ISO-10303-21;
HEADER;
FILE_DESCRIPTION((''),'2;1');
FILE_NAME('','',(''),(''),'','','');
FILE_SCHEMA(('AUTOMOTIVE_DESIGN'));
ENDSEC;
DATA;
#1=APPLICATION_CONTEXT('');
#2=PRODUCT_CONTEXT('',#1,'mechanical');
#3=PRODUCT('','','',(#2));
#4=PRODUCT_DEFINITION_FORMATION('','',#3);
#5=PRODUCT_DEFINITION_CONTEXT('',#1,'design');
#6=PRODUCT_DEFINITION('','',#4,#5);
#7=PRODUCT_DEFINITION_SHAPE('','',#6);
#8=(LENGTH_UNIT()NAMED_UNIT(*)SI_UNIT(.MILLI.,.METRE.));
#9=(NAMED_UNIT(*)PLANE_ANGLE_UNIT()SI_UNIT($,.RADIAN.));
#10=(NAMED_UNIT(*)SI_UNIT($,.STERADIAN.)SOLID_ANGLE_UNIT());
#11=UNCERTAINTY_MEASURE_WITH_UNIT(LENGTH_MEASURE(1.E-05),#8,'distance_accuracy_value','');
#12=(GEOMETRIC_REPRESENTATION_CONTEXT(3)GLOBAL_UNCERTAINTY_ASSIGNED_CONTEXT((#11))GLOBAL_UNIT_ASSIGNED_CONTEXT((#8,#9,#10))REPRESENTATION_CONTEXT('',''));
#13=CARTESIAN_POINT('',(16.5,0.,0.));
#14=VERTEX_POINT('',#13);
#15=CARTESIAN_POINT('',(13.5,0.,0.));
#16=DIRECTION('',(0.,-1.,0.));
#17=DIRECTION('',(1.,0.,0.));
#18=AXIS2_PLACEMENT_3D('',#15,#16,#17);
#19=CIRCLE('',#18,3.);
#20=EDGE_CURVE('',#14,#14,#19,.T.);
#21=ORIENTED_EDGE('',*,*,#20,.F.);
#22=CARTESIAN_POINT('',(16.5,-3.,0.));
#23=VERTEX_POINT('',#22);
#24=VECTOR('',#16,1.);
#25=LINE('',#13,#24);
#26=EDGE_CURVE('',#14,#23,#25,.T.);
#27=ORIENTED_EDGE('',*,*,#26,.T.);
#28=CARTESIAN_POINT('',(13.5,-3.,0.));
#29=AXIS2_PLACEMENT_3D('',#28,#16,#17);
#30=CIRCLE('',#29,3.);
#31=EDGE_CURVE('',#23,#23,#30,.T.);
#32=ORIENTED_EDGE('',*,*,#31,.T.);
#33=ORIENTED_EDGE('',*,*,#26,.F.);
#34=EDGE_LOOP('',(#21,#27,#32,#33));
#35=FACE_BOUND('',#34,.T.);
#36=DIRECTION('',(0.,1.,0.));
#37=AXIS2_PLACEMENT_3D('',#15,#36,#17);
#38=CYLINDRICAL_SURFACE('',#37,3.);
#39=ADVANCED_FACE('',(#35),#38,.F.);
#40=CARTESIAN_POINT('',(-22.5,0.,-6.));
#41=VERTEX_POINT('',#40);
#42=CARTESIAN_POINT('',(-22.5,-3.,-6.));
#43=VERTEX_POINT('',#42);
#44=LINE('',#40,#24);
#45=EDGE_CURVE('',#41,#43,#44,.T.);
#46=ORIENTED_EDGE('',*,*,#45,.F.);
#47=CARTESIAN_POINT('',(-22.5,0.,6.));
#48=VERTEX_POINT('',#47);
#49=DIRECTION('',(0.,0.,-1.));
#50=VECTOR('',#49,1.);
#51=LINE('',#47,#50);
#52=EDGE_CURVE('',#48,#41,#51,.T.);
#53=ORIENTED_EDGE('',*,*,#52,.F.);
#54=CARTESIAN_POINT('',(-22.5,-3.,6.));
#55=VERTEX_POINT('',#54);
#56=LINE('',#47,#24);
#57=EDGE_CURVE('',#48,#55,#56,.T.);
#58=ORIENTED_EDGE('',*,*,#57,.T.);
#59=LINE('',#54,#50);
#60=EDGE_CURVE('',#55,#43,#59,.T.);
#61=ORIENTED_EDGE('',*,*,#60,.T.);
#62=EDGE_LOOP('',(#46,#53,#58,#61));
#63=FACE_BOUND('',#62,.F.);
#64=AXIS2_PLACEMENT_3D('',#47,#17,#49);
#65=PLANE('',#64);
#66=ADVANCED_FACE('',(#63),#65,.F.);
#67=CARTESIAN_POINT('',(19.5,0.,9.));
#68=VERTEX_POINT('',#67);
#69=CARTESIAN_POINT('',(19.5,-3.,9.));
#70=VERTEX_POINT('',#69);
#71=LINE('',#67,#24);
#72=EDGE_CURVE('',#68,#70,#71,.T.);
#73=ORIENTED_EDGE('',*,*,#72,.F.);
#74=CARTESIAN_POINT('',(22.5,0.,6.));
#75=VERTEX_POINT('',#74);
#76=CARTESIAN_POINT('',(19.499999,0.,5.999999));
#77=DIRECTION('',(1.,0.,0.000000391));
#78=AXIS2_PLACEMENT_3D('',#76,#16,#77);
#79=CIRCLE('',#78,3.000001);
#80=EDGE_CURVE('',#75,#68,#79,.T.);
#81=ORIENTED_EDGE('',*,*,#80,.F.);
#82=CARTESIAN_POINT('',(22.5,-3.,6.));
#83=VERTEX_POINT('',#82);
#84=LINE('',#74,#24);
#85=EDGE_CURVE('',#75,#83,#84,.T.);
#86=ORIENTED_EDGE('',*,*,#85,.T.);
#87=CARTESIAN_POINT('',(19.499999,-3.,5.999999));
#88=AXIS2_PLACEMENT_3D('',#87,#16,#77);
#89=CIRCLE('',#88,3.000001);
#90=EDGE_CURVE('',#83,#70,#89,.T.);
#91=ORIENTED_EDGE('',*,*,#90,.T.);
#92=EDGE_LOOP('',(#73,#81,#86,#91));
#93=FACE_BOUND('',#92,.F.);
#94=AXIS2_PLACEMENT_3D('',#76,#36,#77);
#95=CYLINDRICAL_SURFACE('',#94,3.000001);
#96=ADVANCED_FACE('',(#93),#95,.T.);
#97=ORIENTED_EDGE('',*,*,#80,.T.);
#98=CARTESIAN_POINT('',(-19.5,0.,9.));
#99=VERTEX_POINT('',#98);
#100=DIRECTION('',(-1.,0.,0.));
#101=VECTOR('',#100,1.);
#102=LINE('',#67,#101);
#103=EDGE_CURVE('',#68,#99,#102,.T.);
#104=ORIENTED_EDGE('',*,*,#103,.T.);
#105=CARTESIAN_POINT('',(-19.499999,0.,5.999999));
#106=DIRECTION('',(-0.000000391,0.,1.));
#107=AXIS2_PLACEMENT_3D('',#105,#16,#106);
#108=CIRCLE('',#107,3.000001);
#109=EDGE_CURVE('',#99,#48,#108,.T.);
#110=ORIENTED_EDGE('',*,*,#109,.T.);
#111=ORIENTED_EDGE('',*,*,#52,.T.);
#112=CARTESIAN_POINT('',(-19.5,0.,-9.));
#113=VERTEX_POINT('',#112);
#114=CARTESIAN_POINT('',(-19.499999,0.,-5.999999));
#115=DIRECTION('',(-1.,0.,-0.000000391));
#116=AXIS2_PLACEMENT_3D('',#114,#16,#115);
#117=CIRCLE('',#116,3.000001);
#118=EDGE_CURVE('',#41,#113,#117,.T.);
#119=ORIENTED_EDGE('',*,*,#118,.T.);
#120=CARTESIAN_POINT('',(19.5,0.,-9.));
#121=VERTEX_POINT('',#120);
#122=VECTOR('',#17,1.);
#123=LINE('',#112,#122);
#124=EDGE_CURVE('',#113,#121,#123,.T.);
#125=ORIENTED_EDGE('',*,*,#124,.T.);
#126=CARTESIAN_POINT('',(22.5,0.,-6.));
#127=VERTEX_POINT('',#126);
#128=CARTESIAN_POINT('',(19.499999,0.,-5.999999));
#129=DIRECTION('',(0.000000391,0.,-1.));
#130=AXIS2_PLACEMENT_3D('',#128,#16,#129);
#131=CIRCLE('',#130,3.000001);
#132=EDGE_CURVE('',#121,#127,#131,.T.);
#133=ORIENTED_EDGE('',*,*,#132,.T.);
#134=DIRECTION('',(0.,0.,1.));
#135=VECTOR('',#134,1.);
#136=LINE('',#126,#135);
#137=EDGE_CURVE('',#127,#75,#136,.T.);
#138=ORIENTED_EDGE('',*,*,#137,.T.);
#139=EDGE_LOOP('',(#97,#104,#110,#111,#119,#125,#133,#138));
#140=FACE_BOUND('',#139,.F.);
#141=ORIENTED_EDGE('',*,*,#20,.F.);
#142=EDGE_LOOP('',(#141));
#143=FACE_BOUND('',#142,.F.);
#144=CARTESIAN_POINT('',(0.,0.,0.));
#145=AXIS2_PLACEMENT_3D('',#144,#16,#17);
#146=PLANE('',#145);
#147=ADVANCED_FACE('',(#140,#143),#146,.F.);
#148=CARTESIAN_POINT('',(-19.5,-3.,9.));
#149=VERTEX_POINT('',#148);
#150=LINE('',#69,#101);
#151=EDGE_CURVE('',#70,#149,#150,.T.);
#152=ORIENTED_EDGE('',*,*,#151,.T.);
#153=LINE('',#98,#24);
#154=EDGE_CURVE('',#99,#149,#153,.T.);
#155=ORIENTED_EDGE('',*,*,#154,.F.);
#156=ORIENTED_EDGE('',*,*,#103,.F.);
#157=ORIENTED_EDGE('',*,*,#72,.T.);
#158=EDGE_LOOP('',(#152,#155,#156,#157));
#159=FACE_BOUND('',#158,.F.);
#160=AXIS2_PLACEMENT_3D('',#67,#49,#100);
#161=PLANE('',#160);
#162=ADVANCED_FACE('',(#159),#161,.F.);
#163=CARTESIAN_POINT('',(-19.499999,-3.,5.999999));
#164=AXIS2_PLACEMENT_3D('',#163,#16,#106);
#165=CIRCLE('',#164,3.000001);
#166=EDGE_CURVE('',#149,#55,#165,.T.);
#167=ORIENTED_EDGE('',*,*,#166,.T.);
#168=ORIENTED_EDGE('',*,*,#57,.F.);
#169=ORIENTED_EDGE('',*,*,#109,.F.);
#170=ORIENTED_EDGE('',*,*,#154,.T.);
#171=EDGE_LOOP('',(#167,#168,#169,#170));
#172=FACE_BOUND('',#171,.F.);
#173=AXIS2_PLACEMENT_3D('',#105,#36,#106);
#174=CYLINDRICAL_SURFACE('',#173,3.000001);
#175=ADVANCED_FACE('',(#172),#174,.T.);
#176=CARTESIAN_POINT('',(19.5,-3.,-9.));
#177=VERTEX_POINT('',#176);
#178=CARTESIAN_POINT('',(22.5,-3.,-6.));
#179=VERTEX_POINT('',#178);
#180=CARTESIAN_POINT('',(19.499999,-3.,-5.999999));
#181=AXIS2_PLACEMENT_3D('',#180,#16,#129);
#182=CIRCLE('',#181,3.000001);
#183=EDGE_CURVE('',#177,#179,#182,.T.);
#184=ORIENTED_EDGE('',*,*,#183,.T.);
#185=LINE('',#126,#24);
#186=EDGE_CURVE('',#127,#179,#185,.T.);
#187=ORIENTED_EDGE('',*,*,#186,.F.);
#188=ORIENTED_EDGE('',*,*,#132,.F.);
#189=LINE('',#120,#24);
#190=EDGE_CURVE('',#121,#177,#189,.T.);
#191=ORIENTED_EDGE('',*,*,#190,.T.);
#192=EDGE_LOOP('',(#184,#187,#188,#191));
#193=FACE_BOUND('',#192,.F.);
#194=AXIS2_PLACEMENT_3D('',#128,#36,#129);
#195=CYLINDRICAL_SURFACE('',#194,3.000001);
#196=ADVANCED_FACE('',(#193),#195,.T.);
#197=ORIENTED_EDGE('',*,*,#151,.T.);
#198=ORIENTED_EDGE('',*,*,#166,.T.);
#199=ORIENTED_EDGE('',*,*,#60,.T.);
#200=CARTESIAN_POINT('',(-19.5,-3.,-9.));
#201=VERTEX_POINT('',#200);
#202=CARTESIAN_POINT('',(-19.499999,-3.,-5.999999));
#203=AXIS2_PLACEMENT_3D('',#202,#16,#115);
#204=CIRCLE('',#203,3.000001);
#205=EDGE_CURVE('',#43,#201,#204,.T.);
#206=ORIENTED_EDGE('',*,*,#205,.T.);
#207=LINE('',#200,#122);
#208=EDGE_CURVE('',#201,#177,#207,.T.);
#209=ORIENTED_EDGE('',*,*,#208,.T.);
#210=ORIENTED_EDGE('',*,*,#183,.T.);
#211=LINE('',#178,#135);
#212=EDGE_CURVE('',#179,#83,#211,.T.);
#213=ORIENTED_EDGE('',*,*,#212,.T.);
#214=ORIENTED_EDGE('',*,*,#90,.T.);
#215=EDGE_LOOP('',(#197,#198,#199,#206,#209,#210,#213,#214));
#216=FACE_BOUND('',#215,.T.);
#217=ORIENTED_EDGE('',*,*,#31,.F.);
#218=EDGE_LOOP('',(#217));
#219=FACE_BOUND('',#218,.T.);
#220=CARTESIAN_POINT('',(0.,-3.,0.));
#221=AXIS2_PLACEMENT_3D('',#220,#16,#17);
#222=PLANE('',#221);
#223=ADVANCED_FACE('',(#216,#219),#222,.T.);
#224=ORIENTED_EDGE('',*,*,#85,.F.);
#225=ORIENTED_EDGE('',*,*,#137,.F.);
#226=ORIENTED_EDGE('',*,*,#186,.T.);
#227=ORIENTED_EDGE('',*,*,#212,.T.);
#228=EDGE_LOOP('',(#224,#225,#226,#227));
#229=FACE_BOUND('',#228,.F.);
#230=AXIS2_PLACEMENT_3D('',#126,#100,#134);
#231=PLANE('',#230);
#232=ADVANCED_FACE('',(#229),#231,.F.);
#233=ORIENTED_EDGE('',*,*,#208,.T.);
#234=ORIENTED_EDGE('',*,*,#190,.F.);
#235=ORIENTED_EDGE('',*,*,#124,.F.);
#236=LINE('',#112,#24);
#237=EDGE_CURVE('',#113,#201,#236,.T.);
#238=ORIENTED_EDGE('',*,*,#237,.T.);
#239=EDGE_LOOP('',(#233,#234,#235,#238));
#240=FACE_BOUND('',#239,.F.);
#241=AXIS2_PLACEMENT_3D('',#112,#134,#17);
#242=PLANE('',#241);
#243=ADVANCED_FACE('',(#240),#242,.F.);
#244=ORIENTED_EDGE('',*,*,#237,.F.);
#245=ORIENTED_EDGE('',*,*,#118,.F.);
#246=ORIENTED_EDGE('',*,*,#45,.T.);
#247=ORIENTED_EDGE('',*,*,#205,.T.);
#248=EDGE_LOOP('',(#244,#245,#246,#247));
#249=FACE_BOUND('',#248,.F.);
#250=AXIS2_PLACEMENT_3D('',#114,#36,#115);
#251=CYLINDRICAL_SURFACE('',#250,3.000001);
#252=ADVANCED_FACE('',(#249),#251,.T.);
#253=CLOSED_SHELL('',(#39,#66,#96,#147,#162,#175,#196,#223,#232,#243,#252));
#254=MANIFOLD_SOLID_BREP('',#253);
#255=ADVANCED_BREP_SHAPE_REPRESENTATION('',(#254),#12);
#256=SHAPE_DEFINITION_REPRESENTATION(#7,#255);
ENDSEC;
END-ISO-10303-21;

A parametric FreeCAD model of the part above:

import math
import FreeCAD as App
import Part
import Sketcher
Q = App.Units.Quantity

doc = App.newDocument("Part")
body = doc.addObject("PartDesign::Body", "Body")

sketch1 = body.newObject("Sketcher::SketchObject", "Sketch")
sketch1.AttachmentSupport = (doc.getObject("XZ_Plane"), [""])
sketch1.MapMode = "FlatFace"
sketch1.addGeometry(Part.LineSegment(App.Vector(-19.5, -9, 0), App.Vector(19.5, -9, 0)), False)
sketch1.addGeometry(Part.ArcOfCircle(Part.Circle(App.Vector(19.499999, -5.999999, 0), App.Vector(0, 0, 1), 3.000001), math.radians(-89.999978), math.radians(-0.000022)), False)
sketch1.addGeometry(Part.LineSegment(App.Vector(22.5, -6, 0), App.Vector(22.5, 6, 0)), False)
sketch1.addGeometry(Part.ArcOfCircle(Part.Circle(App.Vector(19.499999, 5.999999, 0), App.Vector(0, 0, 1), 3.000001), math.radians(0.000022), math.radians(89.999978)), False)
sketch1.addGeometry(Part.LineSegment(App.Vector(19.5, 9, 0), App.Vector(-19.5, 9, 0)), False)
sketch1.addGeometry(Part.ArcOfCircle(Part.Circle(App.Vector(-19.499999, 5.999999, 0), App.Vector(0, 0, 1), 3.000001), math.radians(90.000022), math.radians(179.999978)), False)
sketch1.addGeometry(Part.LineSegment(App.Vector(-22.5, 6, 0), App.Vector(-22.5, -6, 0)), False)
sketch1.addGeometry(Part.ArcOfCircle(Part.Circle(App.Vector(-19.499999, -5.999999, 0), App.Vector(0, 0, 1), 3.000001), math.radians(-179.999978), math.radians(-90.000022)), False)
sketch1.addGeometry(Part.Circle(App.Vector(13.5, 0, 0), App.Vector(0, 0, 1), 3), False)
sketch1.addConstraint(Sketcher.Constraint("Tangent", 0, 2, 1, 1))
sketch1.addConstraint(Sketcher.Constraint("Tangent", 1, 2, 2, 1))
sketch1.addConstraint(Sketcher.Constraint("Tangent", 2, 2, 3, 1))
sketch1.addConstraint(Sketcher.Constraint("Tangent", 3, 2, 4, 1))
sketch1.addConstraint(Sketcher.Constraint("Tangent", 4, 2, 5, 1))
sketch1.addConstraint(Sketcher.Constraint("Tangent", 5, 2, 6, 1))
sketch1.addConstraint(Sketcher.Constraint("Tangent", 6, 2, 7, 1))
sketch1.addConstraint(Sketcher.Constraint("Tangent", 7, 2, 0, 1))
sketch1.addConstraint(Sketcher.Constraint("Horizontal", 0))
sketch1.addConstraint(Sketcher.Constraint("Vertical", 2))
sketch1.addConstraint(Sketcher.Constraint("Horizontal", 4))
sketch1.addConstraint(Sketcher.Constraint("Vertical", 6))
sketch1.addConstraint(Sketcher.Constraint("Equal", 1, 3))
sketch1.addConstraint(Sketcher.Constraint("Equal", 3, 5))
sketch1.addConstraint(Sketcher.Constraint("Equal", 5, 7))
sketch1.addConstraint(Sketcher.Constraint("Equal", 7, 8))
sketch1.addConstraint(Sketcher.Constraint("Symmetric", 1, 3, 5, 3, -1, 1))
sketch1.addConstraint(Sketcher.Constraint("PointOnObject", 8, 3, -1))
sketch1.addConstraint(Sketcher.Constraint("Diameter", 8, Q("6 mm")))
sketch1.addConstraint(Sketcher.Constraint("DistanceX", 0, 1, 0, 2, Q("39 mm")))
sketch1.addConstraint(Sketcher.Constraint("DistanceY", 2, 1, 2, 2, Q("12 mm")))
sketch1.addConstraint(Sketcher.Constraint("DistanceX", 8, 3, 1, 3, Q("5.999999 mm")))
pad1 = body.newObject("PartDesign::Pad", "Pad")
pad1.Profile = sketch1
pad1.Length = 3

doc.recompute()
